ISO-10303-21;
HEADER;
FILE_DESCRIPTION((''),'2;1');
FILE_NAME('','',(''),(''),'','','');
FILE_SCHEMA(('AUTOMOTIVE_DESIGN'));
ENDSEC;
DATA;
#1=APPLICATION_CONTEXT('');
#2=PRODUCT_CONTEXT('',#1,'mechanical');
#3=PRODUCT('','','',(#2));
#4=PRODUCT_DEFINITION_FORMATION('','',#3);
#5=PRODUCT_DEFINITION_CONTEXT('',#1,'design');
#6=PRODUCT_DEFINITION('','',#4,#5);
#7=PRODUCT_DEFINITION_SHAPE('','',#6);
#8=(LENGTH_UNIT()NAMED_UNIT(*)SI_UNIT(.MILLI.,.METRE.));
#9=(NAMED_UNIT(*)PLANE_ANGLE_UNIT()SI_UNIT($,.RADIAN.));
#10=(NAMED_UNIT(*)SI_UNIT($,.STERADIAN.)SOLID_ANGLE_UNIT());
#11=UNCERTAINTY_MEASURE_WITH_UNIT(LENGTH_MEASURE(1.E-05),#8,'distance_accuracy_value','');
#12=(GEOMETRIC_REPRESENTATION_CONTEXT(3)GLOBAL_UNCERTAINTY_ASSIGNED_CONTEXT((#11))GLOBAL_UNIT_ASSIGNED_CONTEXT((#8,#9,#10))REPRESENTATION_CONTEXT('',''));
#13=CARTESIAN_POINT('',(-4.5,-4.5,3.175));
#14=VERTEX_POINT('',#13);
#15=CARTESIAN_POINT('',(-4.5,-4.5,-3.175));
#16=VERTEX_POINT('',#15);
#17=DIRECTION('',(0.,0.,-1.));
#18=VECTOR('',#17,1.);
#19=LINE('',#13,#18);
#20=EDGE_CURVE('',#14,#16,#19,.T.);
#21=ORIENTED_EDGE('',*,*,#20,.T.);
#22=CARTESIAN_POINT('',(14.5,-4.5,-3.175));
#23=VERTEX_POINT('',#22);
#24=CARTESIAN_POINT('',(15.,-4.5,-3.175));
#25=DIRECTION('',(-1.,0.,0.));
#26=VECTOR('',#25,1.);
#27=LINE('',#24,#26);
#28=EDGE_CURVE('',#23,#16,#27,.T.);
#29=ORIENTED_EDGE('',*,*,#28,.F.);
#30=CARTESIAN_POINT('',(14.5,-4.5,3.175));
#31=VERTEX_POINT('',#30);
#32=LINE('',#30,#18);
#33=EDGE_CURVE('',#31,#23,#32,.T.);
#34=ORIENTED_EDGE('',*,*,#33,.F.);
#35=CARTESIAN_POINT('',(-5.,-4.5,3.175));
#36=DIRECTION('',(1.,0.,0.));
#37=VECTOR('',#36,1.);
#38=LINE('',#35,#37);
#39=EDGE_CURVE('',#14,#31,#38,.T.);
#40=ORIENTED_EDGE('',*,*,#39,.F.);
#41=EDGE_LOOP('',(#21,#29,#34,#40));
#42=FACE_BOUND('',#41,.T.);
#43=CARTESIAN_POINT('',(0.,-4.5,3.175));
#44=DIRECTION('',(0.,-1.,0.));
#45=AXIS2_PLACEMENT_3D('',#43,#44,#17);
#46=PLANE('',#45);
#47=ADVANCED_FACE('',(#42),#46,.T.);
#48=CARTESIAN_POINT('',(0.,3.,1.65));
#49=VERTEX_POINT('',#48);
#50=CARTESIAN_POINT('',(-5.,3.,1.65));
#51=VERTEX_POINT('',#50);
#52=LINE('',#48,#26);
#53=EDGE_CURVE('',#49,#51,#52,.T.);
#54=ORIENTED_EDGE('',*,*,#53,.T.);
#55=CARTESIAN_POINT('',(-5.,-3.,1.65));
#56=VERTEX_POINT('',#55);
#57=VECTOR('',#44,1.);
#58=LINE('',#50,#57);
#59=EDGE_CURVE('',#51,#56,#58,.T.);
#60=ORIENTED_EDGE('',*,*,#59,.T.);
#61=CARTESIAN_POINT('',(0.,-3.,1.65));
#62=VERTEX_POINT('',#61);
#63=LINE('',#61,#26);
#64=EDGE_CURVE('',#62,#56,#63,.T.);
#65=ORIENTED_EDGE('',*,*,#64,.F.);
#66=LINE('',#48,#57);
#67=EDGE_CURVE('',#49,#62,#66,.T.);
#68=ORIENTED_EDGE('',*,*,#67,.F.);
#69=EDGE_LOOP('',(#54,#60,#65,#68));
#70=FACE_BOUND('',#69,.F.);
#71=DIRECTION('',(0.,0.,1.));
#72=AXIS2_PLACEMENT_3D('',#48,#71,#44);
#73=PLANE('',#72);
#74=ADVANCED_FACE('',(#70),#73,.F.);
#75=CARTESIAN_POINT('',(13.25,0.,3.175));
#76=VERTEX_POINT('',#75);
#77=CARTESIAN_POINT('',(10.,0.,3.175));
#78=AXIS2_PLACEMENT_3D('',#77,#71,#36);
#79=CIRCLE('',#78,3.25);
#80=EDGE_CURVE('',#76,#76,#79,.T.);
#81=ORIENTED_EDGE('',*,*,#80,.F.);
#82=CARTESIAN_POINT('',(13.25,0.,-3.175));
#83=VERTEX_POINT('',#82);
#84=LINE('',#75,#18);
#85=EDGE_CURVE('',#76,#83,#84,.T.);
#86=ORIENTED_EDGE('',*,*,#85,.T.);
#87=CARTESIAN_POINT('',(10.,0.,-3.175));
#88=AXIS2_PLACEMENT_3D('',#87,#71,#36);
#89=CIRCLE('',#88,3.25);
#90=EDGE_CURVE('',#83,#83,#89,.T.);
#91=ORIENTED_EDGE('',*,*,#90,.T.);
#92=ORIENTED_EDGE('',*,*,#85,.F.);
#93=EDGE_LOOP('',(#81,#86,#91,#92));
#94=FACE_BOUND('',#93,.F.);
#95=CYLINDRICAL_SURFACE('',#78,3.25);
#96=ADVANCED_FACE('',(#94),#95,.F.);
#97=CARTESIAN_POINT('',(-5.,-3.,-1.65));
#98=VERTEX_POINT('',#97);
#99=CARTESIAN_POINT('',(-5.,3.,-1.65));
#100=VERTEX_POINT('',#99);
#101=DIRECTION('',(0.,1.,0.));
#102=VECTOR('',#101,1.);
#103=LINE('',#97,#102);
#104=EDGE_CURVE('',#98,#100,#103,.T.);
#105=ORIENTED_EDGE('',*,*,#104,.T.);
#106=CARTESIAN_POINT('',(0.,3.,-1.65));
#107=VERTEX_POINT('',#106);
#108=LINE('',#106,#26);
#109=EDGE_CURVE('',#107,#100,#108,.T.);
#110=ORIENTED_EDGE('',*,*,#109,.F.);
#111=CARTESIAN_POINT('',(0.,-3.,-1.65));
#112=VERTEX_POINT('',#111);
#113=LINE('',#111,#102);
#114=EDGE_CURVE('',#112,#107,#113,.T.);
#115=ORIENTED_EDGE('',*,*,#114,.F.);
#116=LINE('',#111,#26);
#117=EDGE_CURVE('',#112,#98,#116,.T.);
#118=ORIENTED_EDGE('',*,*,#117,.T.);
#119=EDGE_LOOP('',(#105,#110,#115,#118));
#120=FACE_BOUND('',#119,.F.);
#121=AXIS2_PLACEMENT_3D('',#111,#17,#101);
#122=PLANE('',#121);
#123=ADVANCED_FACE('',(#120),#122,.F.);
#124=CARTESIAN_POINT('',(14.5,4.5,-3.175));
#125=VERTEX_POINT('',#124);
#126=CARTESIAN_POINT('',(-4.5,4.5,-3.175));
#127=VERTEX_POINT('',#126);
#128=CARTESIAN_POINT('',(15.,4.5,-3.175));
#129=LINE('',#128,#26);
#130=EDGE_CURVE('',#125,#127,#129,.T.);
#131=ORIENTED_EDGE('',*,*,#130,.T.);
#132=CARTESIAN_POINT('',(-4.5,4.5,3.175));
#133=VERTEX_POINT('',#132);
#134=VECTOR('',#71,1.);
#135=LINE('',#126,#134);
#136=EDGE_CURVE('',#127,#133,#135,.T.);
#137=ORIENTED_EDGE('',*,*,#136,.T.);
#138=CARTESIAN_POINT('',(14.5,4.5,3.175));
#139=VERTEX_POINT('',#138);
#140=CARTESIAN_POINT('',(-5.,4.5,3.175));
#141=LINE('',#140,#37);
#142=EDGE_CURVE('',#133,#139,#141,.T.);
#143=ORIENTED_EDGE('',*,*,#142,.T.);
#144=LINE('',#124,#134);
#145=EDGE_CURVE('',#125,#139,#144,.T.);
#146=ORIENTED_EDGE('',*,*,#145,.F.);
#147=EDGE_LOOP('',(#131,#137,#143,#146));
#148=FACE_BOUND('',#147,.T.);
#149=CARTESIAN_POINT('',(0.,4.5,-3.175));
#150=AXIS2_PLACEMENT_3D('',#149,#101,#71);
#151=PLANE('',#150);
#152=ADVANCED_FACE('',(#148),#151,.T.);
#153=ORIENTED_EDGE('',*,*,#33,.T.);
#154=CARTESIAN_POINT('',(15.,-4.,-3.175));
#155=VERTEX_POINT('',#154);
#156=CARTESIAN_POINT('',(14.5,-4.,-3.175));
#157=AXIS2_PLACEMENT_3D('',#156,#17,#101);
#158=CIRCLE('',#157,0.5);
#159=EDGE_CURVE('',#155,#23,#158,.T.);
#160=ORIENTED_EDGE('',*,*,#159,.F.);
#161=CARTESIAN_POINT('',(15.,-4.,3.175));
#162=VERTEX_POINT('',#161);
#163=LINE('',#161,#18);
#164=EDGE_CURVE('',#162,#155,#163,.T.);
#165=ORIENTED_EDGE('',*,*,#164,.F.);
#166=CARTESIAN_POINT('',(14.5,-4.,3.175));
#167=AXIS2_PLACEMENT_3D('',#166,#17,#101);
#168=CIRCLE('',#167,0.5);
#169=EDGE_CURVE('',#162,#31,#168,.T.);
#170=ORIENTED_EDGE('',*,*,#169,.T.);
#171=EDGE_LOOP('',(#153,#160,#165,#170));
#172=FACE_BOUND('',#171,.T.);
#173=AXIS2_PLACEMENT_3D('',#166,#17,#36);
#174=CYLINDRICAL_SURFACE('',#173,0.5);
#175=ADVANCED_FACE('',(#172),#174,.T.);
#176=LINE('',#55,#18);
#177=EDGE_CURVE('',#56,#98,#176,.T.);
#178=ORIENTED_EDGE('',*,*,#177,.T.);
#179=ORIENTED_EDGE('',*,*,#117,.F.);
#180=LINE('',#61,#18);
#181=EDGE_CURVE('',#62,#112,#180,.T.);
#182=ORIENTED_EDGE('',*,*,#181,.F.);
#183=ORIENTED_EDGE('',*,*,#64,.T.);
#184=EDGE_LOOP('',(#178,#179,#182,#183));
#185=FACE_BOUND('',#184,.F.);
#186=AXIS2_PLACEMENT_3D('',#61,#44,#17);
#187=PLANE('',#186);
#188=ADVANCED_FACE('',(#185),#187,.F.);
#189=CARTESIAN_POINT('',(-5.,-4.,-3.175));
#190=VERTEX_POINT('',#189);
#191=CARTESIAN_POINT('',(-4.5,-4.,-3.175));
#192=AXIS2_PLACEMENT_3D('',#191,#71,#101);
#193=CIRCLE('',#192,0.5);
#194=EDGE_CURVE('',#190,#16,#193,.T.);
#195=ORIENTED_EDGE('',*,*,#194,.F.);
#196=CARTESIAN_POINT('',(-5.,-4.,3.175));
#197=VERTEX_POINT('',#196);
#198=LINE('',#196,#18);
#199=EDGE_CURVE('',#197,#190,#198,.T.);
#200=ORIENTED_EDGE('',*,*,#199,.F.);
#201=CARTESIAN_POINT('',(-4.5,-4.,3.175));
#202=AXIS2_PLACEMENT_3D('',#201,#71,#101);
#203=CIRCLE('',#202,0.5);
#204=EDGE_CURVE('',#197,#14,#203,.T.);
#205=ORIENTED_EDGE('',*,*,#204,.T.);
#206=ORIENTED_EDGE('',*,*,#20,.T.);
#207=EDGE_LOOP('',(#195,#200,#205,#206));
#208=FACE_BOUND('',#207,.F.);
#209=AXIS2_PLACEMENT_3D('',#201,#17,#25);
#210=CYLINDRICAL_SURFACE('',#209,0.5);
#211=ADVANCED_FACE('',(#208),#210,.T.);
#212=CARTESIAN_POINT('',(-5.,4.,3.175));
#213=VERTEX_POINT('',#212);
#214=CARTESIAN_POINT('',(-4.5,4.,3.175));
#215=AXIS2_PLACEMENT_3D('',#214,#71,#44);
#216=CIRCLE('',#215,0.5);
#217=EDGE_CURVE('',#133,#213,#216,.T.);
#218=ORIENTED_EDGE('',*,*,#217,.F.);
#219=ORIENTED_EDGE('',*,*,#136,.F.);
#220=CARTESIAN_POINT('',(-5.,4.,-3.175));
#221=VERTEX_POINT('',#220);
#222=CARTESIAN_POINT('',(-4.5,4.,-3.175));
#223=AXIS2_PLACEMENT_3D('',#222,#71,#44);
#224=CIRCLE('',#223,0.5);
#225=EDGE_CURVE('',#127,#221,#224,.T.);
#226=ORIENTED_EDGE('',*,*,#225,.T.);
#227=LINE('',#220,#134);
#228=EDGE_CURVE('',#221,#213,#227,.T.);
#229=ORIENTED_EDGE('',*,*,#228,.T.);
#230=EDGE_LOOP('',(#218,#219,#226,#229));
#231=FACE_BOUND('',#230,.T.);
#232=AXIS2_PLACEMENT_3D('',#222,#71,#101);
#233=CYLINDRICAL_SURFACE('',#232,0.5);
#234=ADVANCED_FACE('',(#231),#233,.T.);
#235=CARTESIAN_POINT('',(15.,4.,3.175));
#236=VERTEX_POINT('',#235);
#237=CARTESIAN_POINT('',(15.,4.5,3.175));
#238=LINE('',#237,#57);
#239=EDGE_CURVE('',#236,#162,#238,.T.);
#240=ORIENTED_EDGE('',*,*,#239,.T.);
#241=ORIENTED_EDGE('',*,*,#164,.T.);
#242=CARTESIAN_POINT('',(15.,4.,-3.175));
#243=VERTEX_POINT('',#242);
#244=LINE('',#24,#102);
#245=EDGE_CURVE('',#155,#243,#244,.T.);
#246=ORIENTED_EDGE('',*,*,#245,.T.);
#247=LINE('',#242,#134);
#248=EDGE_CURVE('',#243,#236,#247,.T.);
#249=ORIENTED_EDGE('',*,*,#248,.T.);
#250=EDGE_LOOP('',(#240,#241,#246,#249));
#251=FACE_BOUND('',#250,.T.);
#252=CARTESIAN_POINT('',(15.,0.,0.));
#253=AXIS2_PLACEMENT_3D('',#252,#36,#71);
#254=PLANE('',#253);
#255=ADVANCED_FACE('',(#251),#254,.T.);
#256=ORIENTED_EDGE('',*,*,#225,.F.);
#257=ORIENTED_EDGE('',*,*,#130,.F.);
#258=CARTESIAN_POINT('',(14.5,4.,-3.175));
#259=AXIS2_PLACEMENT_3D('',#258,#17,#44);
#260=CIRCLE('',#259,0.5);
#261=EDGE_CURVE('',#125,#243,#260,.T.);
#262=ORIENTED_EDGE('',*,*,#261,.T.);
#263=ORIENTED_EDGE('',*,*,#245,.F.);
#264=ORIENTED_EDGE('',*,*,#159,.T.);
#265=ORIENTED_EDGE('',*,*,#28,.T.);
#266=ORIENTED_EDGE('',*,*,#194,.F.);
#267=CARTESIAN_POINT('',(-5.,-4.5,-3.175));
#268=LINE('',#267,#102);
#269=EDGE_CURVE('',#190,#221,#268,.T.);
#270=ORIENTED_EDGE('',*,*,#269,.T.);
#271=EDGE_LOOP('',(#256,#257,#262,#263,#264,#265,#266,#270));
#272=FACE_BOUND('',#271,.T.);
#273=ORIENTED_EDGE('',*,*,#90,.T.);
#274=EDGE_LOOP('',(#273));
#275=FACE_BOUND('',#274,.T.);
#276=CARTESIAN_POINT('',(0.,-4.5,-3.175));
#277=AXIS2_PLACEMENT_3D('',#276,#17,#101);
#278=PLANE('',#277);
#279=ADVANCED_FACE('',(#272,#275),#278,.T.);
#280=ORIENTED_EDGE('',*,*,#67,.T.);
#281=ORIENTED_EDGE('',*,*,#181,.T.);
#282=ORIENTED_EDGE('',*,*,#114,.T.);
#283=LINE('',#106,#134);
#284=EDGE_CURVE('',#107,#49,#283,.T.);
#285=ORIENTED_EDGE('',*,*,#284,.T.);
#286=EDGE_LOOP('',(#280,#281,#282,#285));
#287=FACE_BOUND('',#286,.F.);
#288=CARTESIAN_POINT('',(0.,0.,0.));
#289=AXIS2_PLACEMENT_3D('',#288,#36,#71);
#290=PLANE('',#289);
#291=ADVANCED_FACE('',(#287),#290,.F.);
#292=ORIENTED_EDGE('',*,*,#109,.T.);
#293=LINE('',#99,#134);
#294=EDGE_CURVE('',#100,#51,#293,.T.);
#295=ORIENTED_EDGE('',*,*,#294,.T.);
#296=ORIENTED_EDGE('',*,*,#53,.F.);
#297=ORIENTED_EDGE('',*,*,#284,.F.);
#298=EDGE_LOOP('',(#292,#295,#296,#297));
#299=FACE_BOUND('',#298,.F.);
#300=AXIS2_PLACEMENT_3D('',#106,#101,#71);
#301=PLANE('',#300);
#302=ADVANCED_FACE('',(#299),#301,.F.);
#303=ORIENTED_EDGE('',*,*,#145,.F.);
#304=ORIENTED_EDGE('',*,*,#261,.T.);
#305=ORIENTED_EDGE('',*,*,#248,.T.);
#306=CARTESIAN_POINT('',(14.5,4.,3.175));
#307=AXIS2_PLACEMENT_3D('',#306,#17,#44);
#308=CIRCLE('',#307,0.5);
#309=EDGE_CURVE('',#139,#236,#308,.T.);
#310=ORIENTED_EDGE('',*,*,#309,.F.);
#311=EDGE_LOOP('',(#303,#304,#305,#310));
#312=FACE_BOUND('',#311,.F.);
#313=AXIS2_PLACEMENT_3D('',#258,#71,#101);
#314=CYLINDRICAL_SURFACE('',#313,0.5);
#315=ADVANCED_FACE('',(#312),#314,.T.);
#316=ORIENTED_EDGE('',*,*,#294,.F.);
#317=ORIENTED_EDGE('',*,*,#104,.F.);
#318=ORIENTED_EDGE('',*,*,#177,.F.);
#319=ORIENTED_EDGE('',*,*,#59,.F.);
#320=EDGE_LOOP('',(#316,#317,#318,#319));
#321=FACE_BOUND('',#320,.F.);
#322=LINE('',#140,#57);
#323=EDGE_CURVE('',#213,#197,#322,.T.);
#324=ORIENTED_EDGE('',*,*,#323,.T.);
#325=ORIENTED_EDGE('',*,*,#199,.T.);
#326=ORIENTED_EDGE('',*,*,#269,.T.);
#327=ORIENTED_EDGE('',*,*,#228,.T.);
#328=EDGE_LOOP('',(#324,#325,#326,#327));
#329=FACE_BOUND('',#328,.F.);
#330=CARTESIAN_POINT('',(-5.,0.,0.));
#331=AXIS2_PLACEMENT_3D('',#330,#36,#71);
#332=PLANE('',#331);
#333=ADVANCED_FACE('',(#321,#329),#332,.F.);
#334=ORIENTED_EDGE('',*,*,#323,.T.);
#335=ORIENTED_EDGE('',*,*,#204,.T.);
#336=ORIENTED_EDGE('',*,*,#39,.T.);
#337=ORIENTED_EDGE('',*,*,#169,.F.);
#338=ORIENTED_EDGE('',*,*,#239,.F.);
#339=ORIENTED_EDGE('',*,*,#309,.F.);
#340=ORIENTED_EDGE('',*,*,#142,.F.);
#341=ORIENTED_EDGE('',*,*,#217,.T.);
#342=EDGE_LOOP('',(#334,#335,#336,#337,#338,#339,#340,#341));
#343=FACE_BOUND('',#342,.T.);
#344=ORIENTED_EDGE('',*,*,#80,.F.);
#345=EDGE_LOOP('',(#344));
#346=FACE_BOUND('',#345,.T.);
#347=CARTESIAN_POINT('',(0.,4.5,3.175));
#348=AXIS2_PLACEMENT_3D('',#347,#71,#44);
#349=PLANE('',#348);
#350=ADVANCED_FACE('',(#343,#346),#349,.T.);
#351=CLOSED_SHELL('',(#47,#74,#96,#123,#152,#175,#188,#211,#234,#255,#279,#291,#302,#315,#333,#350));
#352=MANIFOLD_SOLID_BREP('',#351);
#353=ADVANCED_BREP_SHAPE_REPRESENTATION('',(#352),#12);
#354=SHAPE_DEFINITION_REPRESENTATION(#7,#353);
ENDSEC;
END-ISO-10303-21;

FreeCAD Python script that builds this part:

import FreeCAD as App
import Part
import Sketcher
from FreeCAD import Vector


def edges_at(feature, points):
    """Names of the edges that pass closest to the given points."""
    edges = feature.Shape.Edges
    near = lambda p: min(range(len(edges)), key=lambda i: edges[i].distToShape(Part.Vertex(*p))[0])
    return sorted({f"Edge{near(p) + 1}" for p in points})


def add_polygon(sketch, points):
    """Adds a closed chain of lines whose ends are joined by coincident constraints."""
    first, n = sketch.GeometryCount, len(points)
    for a, b in zip(points, points[1:] + points[:1]):
        sketch.addGeometry(Part.LineSegment(App.Vector(*a, 0), App.Vector(*b, 0)), False)
    for i in range(n):
        sketch.addConstraint(Sketcher.Constraint("Coincident", first + i, 2, first + (i + 1) % n, 1))

doc = App.newDocument("Part")
params = doc.addObject("Spreadsheet::Sheet", "Params")
for row, (alias, value) in enumerate([
    ("sketch1_width", "9 mm"),
    ("sketch1_width2", "6 mm"),
    ("sketch1_height", "3.3 mm"),
    ("sketch1_height2", "6.35 mm"),
    ("pad1_length", "5 mm"),
    ("sketch2_width", "9 mm"),
    ("sketch2_height", "6.35 mm"),
    ("pad2_length", "15 mm"),
    ("sketch3_diameter", "6.5 mm"),
    ("fillet_radius", "0.5 mm"),
], start=1):
    params.set(f"A{row}", alias)
    params.set(f"B{row}", "=" + value)
    params.setAlias(f"B{row}", alias)

body = doc.addObject("PartDesign::Body", "Body")

# Sketch on YZ plane
sketch1 = doc.addObject("Sketcher::SketchObject", "Sketch")
body.addObject(sketch1)
sketch1.AttachmentSupport = (doc.YZ_Plane, [""])
sketch1.MapMode = "FlatFace"
add_polygon(sketch1, [(-4.5, -3.2), (4.5, -3.2), (4.5, 3.2), (-4.5, 3.2)])  # lines 0-3
add_polygon(sketch1, [(3, 1.6), (3, -1.6), (-3, -1.6), (-3, 1.6)])  # lines 4-7
sketch1.addConstraint(Sketcher.Constraint("Horizontal", 0))
sketch1.addConstraint(Sketcher.Constraint("Vertical", 1))
sketch1.addConstraint(Sketcher.Constraint("Horizontal", 2))
sketch1.addConstraint(Sketcher.Constraint("Vertical", 3))
sketch1.addConstraint(Sketcher.Constraint("Vertical", 4))
sketch1.addConstraint(Sketcher.Constraint("Horizontal", 5))
sketch1.addConstraint(Sketcher.Constraint("Vertical", 6))
sketch1.addConstraint(Sketcher.Constraint("Horizontal", 7))
sketch1.addConstraint(Sketcher.Constraint("Symmetric", 0, 2, 2, 2, -1, 1))
sketch1.addConstraint(Sketcher.Constraint("Symmetric", 4, 2, 6, 2, -1, 1))
sketch1.addConstraint(Sketcher.Constraint("DistanceX", 0, 1, 0, 2, 9.0))
sketch1.addConstraint(Sketcher.Constraint("DistanceX", 5, 2, 5, 1, 6.0))
sketch1.addConstraint(Sketcher.Constraint("DistanceY", 4, 2, 4, 1, 3.3))
sketch1.addConstraint(Sketcher.Constraint("DistanceY", 1, 1, 1, 2, 6.35))
sketch1.setExpression("Constraints[18]", "Params.sketch1_width")
sketch1.setExpression("Constraints[19]", "Params.sketch1_width2")
sketch1.setExpression("Constraints[20]", "Params.sketch1_height")
sketch1.setExpression("Constraints[21]", "Params.sketch1_height2")
pad1 = doc.addObject("PartDesign::Pad", "Pad")
body.addObject(pad1)
pad1.Profile = sketch1
pad1.setExpression("Length", "Params.pad1_length")
pad1.Reversed = True

# Sketch on YZ plane
sketch2 = doc.addObject("Sketcher::SketchObject", "Sketch001")
body.addObject(sketch2)
sketch2.AttachmentSupport = (doc.YZ_Plane, [""])
sketch2.MapMode = "FlatFace"
add_polygon(sketch2, [(-4, -3), (4, -3), (4, 3), (-4, 3)])  # lines 0-3
sketch2.addConstraint(Sketcher.Constraint("Horizontal", 0))
sketch2.addConstraint(Sketcher.Constraint("Vertical", 1))
sketch2.addConstraint(Sketcher.Constraint("Horizontal", 2))
sketch2.addConstraint(Sketcher.Constraint("Vertical", 3))
sketch2.addConstraint(Sketcher.Constraint("Symmetric", 0, 2, 2, 2, -1, 1))
sketch2.addConstraint(Sketcher.Constraint("DistanceX", 0, 1, 0, 2, 9.0))
sketch2.addConstraint(Sketcher.Constraint("DistanceY", 1, 1, 1, 2, 6.35))
sketch2.setExpression("Constraints[9]", "Params.sketch2_width")
sketch2.setExpression("Constraints[10]", "Params.sketch2_height")
pad2 = doc.addObject("PartDesign::Pad", "Pad001")
body.addObject(pad2)
pad2.Profile = sketch2
pad2.setExpression("Length", "Params.pad2_length")

# Sketch on XY plane
sketch3 = doc.addObject("Sketcher::SketchObject", "Sketch002")
body.addObject(sketch3)
sketch3.AttachmentSupport = (doc.XY_Plane, [""])
sketch3.MapMode = "FlatFace"
sketch3.AttachmentOffset = App.Placement(Vector(0, 0, 3.175), App.Rotation())
sketch3.addGeometry(Part.Circle(Vector(10, 0, 0), Vector(0, 0, 1), 3.2), False)
sketch3.addConstraint(Sketcher.Constraint("PointOnObject", 0, 3, -1))
sketch3.addConstraint(Sketcher.Constraint("Diameter", 0, 6.5))
sketch3.addConstraint(Sketcher.Constraint("DistanceX", -1, 1, 0, 3, 10.0))
sketch3.setExpression("Constraints[1]", "Params.sketch3_diameter")
pocket1 = doc.addObject("PartDesign::Pocket", "Pocket")
body.addObject(pocket1)
pocket1.Profile = sketch3
pocket1.Type = "UpToFirst"
doc.recompute()

fillet = doc.addObject("PartDesign::Fillet", "Fillet")
body.addObject(fillet)
fillet.Base = (pocket1, edges_at(pocket1, [
    (-5, 4.5, 0),
    (-5, -4.5, 0),
    (15, 4.5, 0),
    (15, -4.5, 0),
]))
fillet.setExpression("Radius", "Params.fillet_radius")

doc.recompute()
